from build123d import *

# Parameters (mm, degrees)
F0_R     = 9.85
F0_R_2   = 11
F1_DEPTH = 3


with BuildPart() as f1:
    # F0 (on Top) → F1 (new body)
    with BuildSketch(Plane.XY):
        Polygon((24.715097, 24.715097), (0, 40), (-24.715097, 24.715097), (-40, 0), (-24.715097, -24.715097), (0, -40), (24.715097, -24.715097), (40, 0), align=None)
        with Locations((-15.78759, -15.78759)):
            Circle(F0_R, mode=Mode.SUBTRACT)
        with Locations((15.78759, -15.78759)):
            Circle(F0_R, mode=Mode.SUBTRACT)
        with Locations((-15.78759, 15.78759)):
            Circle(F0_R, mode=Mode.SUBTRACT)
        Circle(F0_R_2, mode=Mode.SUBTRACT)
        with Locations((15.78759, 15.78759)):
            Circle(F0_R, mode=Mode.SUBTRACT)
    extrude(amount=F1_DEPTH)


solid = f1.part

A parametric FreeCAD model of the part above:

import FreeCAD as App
import Part
import Sketcher

V = App.Vector

doc = App.newDocument("Part")
body = doc.addObject("PartDesign::Body", "Body")

# Sketch on XY plane
sketch1 = body.newObject("Sketcher::SketchObject", "Sketch")
sketch1.AttachmentSupport = (doc.getObject("XY_Plane"), [""])
sketch1.MapMode = "FlatFace"
sketch1.addGeometry(Part.LineSegment(V(24.715097, 24.715097, 0), V(0, 40, 0)), False)
sketch1.addGeometry(Part.LineSegment(V(0, 40, 0), V(-24.715097, 24.715097, 0)), False)
sketch1.addGeometry(Part.LineSegment(V(-24.715097, 24.715097, 0), V(-40, 0, 0)), False)
sketch1.addGeometry(Part.LineSegment(V(-40, 0, 0), V(-24.715097, -24.715097, 0)), False)
sketch1.addGeometry(Part.LineSegment(V(-24.715097, -24.715097, 0), V(0, -40, 0)), False)
sketch1.addGeometry(Part.LineSegment(V(0, -40, 0), V(24.715097, -24.715097, 0)), False)
sketch1.addGeometry(Part.LineSegment(V(24.715097, -24.715097, 0), V(40, 0, 0)), False)
sketch1.addGeometry(Part.LineSegment(V(40, 0, 0), V(24.715097, 24.715097, 0)), False)
sketch1.addGeometry(Part.Circle(V(-15.78759, -15.78759, 0), V(0, 0, 1), 9.85), False)
sketch1.addGeometry(Part.Circle(V(0, 0, 0), V(0, 0, 1), 11), False)
sketch1.addGeometry(Part.Circle(V(15.78759, -15.78759, 0), V(0, 0, 1), 9.85), False)
sketch1.addGeometry(Part.Circle(V(-15.78759, 15.78759, 0), V(0, 0, 1), 9.85), False)
sketch1.addGeometry(Part.Circle(V(15.78759, 15.78759, 0), V(0, 0, 1), 9.85), False)
sketch1.addConstraint(Sketcher.Constraint("Coincident", 0, 2, 1, 1))
sketch1.addConstraint(Sketcher.Constraint("Coincident", 1, 2, 2, 1))
sketch1.addConstraint(Sketcher.Constraint("Coincident", 2, 2, 3, 1))
sketch1.addConstraint(Sketcher.Constraint("Coincident", 3, 2, 4, 1))
sketch1.addConstraint(Sketcher.Constraint("Coincident", 4, 2, 5, 1))
sketch1.addConstraint(Sketcher.Constraint("Coincident", 5, 2, 6, 1))
sketch1.addConstraint(Sketcher.Constraint("Coincident", 6, 2, 7, 1))
sketch1.addConstraint(Sketcher.Constraint("Coincident", 7, 2, 0, 1))
sketch1.addConstraint(Sketcher.Constraint("Coincident", 9, 3, -1, 1))
sketch1.addConstraint(Sketcher.Constraint("Equal", 8, 10))
sketch1.addConstraint(Sketcher.Constraint("Equal", 10, 11))
sketch1.addConstraint(Sketcher.Constraint("Equal", 11, 12))
sketch1.addConstraint(Sketcher.Constraint("Symmetric", 10, 3, 11, 3, -1, 1))
sketch1.addConstraint(Sketcher.Constraint("Symmetric", 8, 3, 12, 3, -1, 1))
sketch1.addConstraint(Sketcher.Constraint("Symmetric", 0, 2, 4, 2, -1, 1))
sketch1.addConstraint(Sketcher.Constraint("Symmetric", 1, 2, 5, 2, -1, 1))
sketch1.addConstraint(Sketcher.Constraint("Symmetric", 2, 2, 6, 2, -1, 1))
sketch1.addConstraint(Sketcher.Constraint("Symmetric", 3, 2, 7, 2, -1, 1))
sketch1.addConstraint(Sketcher.Constraint("Symmetric", 8, 3, 10, 3, -2))
sketch1.addConstraint(Sketcher.Constraint("Symmetric", 3, 2, 5, 2, -2))
sketch1.addConstraint(Sketcher.Constraint("PointOnObject", 0, 2, -2))
sketch1.addConstraint(Sketcher.Constraint("PointOnObject", 2, 2, -1))
sketch1.addConstraint(Sketcher.Constraint("Perpendicular", 0, 2))
sketch1.addConstraint(Sketcher.Constraint("Equal", 1, 2))
sketch1.addConstraint(Sketcher.Constraint("Diameter", 9, 22.0))
sketch1.addConstraint(Sketcher.Constraint("Diameter", 8, 19.7))
sketch1.addConstraint(Sketcher.Constraint("DistanceY", -1, 1, 0, 2, 40.0))
sketch1.addConstraint(Sketcher.Constraint("DistanceX", 8, 3, -1, 1, 15.78759))
sketch1.addConstraint(Sketcher.Constraint("DistanceY", 8, 3, -1, 1, 15.78759))
sketch1.addConstraint(Sketcher.Constraint("Distance", 0, 29.059668))
pad1 = body.newObject("PartDesign::Pad", "Pad")
pad1.Profile = sketch1
pad1.Length = 3

doc.recompute()
